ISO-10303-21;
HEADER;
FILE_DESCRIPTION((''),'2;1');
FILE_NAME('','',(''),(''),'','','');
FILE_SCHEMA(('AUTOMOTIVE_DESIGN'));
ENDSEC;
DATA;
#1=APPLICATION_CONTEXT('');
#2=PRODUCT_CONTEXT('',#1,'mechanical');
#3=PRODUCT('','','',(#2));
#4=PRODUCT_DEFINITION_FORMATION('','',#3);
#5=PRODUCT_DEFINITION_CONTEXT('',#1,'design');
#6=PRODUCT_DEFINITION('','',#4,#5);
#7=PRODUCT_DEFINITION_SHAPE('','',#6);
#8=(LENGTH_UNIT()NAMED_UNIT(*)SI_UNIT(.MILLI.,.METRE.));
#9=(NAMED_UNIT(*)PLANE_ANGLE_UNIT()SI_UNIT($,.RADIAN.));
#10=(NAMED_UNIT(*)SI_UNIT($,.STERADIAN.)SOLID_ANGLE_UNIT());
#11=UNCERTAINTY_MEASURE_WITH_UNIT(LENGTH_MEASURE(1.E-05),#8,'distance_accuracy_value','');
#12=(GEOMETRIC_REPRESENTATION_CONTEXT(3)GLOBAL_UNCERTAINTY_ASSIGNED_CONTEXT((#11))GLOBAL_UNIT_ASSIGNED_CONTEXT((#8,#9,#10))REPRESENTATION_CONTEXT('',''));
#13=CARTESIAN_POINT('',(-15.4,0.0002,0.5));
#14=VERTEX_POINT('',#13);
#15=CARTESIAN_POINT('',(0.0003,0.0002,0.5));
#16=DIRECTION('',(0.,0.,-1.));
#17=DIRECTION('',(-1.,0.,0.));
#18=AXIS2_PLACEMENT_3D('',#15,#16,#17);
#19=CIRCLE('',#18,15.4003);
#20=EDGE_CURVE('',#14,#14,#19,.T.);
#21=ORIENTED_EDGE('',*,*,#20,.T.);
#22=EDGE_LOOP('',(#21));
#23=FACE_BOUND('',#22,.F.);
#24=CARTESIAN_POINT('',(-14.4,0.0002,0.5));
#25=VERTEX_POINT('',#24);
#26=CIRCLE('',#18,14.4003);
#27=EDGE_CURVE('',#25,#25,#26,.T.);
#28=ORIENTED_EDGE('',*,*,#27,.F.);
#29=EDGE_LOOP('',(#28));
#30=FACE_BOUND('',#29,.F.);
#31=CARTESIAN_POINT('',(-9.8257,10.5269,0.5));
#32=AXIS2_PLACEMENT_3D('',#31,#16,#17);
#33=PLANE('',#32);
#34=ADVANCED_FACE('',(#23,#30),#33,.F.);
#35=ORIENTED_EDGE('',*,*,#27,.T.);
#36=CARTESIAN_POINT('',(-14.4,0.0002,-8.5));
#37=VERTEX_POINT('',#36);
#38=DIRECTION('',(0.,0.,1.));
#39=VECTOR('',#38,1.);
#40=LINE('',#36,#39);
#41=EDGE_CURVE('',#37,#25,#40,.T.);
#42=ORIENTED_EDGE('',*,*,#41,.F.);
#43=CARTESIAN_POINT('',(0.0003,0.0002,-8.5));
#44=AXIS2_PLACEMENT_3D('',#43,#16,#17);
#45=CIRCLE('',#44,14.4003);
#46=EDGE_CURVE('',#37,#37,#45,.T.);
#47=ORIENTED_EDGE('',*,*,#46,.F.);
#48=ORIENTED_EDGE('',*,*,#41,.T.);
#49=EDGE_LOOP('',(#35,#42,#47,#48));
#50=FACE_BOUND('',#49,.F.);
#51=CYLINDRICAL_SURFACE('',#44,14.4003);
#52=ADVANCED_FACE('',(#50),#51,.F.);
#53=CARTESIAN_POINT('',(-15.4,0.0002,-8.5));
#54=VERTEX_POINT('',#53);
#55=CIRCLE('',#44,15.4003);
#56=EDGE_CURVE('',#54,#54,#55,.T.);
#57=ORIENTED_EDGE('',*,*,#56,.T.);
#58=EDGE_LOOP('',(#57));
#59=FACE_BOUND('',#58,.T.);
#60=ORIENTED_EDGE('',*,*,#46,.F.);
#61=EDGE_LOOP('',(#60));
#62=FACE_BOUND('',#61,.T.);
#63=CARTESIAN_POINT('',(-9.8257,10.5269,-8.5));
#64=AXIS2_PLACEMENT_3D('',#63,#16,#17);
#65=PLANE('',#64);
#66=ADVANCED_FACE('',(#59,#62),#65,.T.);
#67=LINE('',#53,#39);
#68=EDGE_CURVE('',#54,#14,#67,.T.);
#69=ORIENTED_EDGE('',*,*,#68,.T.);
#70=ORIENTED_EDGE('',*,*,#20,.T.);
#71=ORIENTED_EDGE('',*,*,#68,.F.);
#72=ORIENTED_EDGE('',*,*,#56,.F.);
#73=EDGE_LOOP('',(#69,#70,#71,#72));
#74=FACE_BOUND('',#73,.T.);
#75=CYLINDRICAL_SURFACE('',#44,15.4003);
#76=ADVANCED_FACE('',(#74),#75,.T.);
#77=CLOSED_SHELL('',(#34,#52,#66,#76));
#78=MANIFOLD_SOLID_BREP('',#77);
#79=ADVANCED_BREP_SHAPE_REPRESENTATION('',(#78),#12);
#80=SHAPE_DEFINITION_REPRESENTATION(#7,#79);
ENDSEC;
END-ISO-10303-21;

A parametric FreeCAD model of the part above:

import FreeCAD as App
import Part
import Sketcher

V = App.Vector
Q = App.Units.Quantity

doc = App.newDocument("Part")
body = doc.addObject("PartDesign::Body", "Body")

# Sketch on XY plane
sketch1 = body.newObject("Sketcher::SketchObject", "Sketch")
sketch1.AttachmentSupport = (doc.getObject("XY_Plane"), [""])
sketch1.MapMode = "FlatFace"
sketch1.AttachmentOffset = App.Placement(V(0, 0, -8.5), App.Rotation())
sketch1.addGeometry([
    Part.Circle(V(0, 0, 0), V(0, 0, 1), 15),
    Part.Circle(V(0, 0, 0), V(0, 0, 1), 14),
], False)
sketch1.addConstraint([
    Sketcher.Constraint("Coincident", 0, 3, -1, 1),
    Sketcher.Constraint("Coincident", 1, 3, -1, 1),
    Sketcher.Constraint("Diameter", 0, Q("30.8006 mm")),
    Sketcher.Constraint("Diameter", 1, Q("28.8006 mm")),
])
pad1 = body.newObject("PartDesign::Pad", "Pad")
pad1.Profile = sketch1
pad1.Length = 9

doc.recompute()
